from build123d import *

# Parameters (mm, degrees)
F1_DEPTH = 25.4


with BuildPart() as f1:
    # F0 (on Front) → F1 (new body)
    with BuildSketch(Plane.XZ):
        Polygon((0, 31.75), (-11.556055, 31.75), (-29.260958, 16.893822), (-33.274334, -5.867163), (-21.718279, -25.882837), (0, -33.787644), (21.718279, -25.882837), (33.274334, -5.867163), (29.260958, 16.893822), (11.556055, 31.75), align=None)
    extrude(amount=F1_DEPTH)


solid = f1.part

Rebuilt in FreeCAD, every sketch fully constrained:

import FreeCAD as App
import Part
import Sketcher
from FreeCAD import Vector
Q = App.Units.Quantity

doc = App.newDocument("Part")
body = doc.addObject("PartDesign::Body", "Body")

sketch1 = body.newObject("Sketcher::SketchObject", "Sketch")
sketch1.AttachmentSupport = (doc.getObject("XZ_Plane"), [""])
sketch1.MapMode = "FlatFace"
sketch1.addGeometry(Part.LineSegment(Vector(-11.556055, 31.75, 0), Vector(-29.260958, 16.893822, 0)), False)
sketch1.addGeometry(Part.LineSegment(Vector(-29.260958, 16.893822, 0), Vector(-33.274334, -5.867163, 0)), False)
sketch1.addGeometry(Part.LineSegment(Vector(-33.274334, -5.867163, 0), Vector(-21.718279, -25.882837, 0)), False)
sketch1.addGeometry(Part.LineSegment(Vector(-21.718279, -25.882837, 0), Vector(0, -33.787644, 0)), False)
sketch1.addGeometry(Part.LineSegment(Vector(0, -33.787644, 0), Vector(21.718279, -25.882837, 0)), False)
sketch1.addGeometry(Part.LineSegment(Vector(21.718279, -25.882837, 0), Vector(33.274334, -5.867163, 0)), False)
sketch1.addGeometry(Part.LineSegment(Vector(33.274334, -5.867163, 0), Vector(29.260958, 16.893822, 0)), False)
sketch1.addGeometry(Part.LineSegment(Vector(29.260958, 16.893822, 0), Vector(11.556055, 31.75, 0)), False)
sketch1.addGeometry(Part.LineSegment(Vector(11.556055, 31.75, 0), Vector(-11.556055, 31.75, 0)), False)
sketch1.addConstraint(Sketcher.Constraint("Coincident", 0, 2, 1, 1))
sketch1.addConstraint(Sketcher.Constraint("Coincident", 1, 2, 2, 1))
sketch1.addConstraint(Sketcher.Constraint("Coincident", 2, 2, 3, 1))
sketch1.addConstraint(Sketcher.Constraint("Coincident", 3, 2, 4, 1))
sketch1.addConstraint(Sketcher.Constraint("Coincident", 4, 2, 5, 1))
sketch1.addConstraint(Sketcher.Constraint("Coincident", 5, 2, 6, 1))
sketch1.addConstraint(Sketcher.Constraint("Coincident", 6, 2, 7, 1))
sketch1.addConstraint(Sketcher.Constraint("Coincident", 7, 2, 8, 1))
sketch1.addConstraint(Sketcher.Constraint("Coincident", 8, 2, 0, 1))
sketch1.addConstraint(Sketcher.Constraint("Horizontal", 8))
sketch1.addConstraint(Sketcher.Constraint("Symmetric", 2, 2, 4, 2, -2))
sketch1.addConstraint(Sketcher.Constraint("Symmetric", 1, 2, 5, 2, -2))
sketch1.addConstraint(Sketcher.Constraint("Symmetric", 0, 2, 6, 2, -2))
sketch1.addConstraint(Sketcher.Constraint("PointOnObject", 3, 2, -2))
sketch1.addConstraint(Sketcher.Constraint("Equal", 0, 1))
sketch1.addConstraint(Sketcher.Constraint("Equal", 1, 2))
sketch1.addConstraint(Sketcher.Constraint("Equal", 2, 3))
sketch1.addConstraint(Sketcher.Constraint("Equal", 6, 7))
sketch1.addConstraint(Sketcher.Constraint("Angle", 0, Q("-139.999999 deg")))
sketch1.addConstraint(Sketcher.Constraint("Angle", 1, Q("-100.000001 deg")))
sketch1.addConstraint(Sketcher.Constraint("Angle", 2, Q("-60 deg")))
sketch1.addConstraint(Sketcher.Constraint("Angle", 3, Q("-20 deg")))
sketch1.addConstraint(Sketcher.Constraint("DistanceY", -1, 1, 7, 2, Q("1.25 in")))
sketch1.addConstraint(Sketcher.Constraint("DistanceX", 8, 2, 8, 1, 23.11211))
pad1 = body.newObject("PartDesign::Pad", "Pad")
pad1.Profile = sketch1
pad1.Length = Q("1 in")

doc.recompute()
